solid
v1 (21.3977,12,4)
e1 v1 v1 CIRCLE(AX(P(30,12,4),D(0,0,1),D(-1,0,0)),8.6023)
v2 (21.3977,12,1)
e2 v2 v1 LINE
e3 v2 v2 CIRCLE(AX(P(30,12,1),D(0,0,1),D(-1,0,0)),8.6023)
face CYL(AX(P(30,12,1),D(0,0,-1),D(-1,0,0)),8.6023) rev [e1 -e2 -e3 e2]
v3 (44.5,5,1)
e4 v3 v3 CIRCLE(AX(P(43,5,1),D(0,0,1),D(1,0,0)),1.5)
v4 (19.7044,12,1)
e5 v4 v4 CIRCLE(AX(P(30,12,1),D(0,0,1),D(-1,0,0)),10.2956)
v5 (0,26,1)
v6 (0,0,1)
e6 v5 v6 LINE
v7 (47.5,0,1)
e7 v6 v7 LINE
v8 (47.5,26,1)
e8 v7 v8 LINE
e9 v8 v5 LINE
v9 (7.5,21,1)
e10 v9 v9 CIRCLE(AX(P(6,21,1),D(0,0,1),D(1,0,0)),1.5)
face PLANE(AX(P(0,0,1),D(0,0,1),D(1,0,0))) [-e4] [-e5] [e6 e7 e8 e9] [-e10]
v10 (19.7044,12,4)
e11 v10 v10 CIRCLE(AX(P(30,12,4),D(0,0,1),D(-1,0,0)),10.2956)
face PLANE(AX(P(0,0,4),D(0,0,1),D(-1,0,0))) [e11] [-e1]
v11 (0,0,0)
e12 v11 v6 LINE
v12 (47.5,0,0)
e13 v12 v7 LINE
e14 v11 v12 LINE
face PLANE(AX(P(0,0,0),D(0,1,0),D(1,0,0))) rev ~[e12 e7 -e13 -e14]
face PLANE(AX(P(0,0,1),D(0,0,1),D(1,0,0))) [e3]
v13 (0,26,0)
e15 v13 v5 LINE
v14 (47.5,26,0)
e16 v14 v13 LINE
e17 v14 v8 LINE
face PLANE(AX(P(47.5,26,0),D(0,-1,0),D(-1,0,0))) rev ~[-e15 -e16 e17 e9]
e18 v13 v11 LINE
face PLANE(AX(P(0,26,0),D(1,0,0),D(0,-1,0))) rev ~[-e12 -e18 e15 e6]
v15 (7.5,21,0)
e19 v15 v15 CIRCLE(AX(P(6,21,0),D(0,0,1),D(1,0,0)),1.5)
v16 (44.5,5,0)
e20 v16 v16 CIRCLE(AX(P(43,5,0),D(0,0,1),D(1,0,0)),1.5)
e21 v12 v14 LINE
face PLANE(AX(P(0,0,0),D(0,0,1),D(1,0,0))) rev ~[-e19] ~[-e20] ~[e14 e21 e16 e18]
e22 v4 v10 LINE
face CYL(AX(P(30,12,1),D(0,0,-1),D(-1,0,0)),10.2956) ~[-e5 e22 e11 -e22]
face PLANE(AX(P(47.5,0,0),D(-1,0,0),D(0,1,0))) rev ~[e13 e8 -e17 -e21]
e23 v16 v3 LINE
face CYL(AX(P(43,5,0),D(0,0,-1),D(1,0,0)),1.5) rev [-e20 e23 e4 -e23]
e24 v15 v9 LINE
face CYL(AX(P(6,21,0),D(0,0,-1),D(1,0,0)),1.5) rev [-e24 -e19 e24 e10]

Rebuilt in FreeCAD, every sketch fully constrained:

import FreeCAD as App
import Part
import Sketcher
from FreeCAD import Vector
Q = App.Units.Quantity

doc = App.newDocument("Part")
params = doc.addObject("Spreadsheet::Sheet", "Params")
for row, (alias, value) in enumerate([
    ("sketch1_diameter", "3 mm"),
    ("sketch1_height", "26 mm"),
    ("sketch1_width", "47.5 mm"),
    ("pad1_length", "1 mm"),
    ("pad2_length", "3 mm"),
], start=1):
    params.set(f"A{row}", alias)
    params.set(f"B{row}", "=" + value)
    params.setAlias(f"B{row}", alias)

body = doc.addObject("PartDesign::Body", "Body")

# Sketch on XY plane
sketch1 = doc.addObject("Sketcher::SketchObject", "Sketch")
body.addObject(sketch1)
sketch1.AttachmentSupport = (doc.XY_Plane, [""])
sketch1.MapMode = "FlatFace"
sketch1.addGeometry([
    Part.LineSegment(Vector(0, 26, 0), Vector(0, 0, 0)),  # 0
    Part.LineSegment(Vector(0, 0, 0), Vector(47.5, 0, 0)),  # 1
    Part.LineSegment(Vector(47.5, 0, 0), Vector(47.5, 26, 0)),  # 2
    Part.LineSegment(Vector(47.5, 26, 0), Vector(0, 26, 0)),  # 3
    Part.Circle(Vector(43, 5, 0), Vector(0, 0, 1), 1.5),  # 4
    Part.Circle(Vector(6, 21, 0), Vector(0, 0, 1), 1.5),  # 5
], False)
sketch1.addConstraint([
    Sketcher.Constraint("Coincident", 0, 2, 1, 1),
    Sketcher.Constraint("Coincident", 1, 2, 2, 1),
    Sketcher.Constraint("Coincident", 2, 2, 3, 1),
    Sketcher.Constraint("Coincident", 3, 2, 0, 1),
    Sketcher.Constraint("Vertical", 0),
    Sketcher.Constraint("Horizontal", 1),
    Sketcher.Constraint("Vertical", 2),
    Sketcher.Constraint("Horizontal", 3),
    Sketcher.Constraint("Coincident", 0, 2, -1, 1),
    Sketcher.Constraint("Equal", 4, 5),
    Sketcher.Constraint("Diameter", 4, Q("3 mm")),
    Sketcher.Constraint("DistanceY", 0, 2, 0, 1, Q("26 mm")),
    Sketcher.Constraint("DistanceX", 1, 1, 1, 2, Q("47.5 mm")),
    Sketcher.Constraint("DistanceY", -1, 1, 4, 3, Q("5 mm")),
    Sketcher.Constraint("DistanceX", -1, 1, 5, 3, Q("6 mm")),
    Sketcher.Constraint("DistanceY", 5, 3, 2, 2, Q("5 mm")),
    Sketcher.Constraint("DistanceX", 4, 3, 1, 2, Q("4.5 mm")),
])
sketch1.setExpression("Constraints[10]", "Params.sketch1_diameter")
sketch1.setExpression("Constraints[11]", "Params.sketch1_height")
sketch1.setExpression("Constraints[12]", "Params.sketch1_width")
pad1 = doc.addObject("PartDesign::Pad", "Pad")
body.addObject(pad1)
pad1.Profile = sketch1
pad1.setExpression("Length", "Params.pad1_length")

# Sketch on XY plane
sketch2 = doc.addObject("Sketcher::SketchObject", "Sketch001")
body.addObject(sketch2)
sketch2.AttachmentSupport = (doc.XY_Plane, [""])
sketch2.MapMode = "FlatFace"
sketch2.AttachmentOffset = App.Placement(Vector(0, 0, 1), App.Rotation())
sketch2.addGeometry([
    Part.Circle(Vector(30, 12, 0), Vector(0, 0, 1), 10),
    Part.Circle(Vector(30, 12, 0), Vector(0, 0, 1), 9),
], False)
sketch2.addConstraint([
    Sketcher.Constraint("Coincident", 1, 3, 0, 3),
    Sketcher.Constraint("DistanceX", -1, 1, 0, 3, Q("30 mm")),
    Sketcher.Constraint("DistanceY", -1, 1, 0, 3, Q("12 mm")),
    Sketcher.Constraint("Diameter", 0, Q("20.5912 mm")),
    Sketcher.Constraint("Diameter", 1, Q("17.2046 mm")),
])
pad2 = doc.addObject("PartDesign::Pad", "Pad001")
body.addObject(pad2)
pad2.Profile = sketch2
pad2.setExpression("Length", "Params.pad2_length")

doc.recompute()
